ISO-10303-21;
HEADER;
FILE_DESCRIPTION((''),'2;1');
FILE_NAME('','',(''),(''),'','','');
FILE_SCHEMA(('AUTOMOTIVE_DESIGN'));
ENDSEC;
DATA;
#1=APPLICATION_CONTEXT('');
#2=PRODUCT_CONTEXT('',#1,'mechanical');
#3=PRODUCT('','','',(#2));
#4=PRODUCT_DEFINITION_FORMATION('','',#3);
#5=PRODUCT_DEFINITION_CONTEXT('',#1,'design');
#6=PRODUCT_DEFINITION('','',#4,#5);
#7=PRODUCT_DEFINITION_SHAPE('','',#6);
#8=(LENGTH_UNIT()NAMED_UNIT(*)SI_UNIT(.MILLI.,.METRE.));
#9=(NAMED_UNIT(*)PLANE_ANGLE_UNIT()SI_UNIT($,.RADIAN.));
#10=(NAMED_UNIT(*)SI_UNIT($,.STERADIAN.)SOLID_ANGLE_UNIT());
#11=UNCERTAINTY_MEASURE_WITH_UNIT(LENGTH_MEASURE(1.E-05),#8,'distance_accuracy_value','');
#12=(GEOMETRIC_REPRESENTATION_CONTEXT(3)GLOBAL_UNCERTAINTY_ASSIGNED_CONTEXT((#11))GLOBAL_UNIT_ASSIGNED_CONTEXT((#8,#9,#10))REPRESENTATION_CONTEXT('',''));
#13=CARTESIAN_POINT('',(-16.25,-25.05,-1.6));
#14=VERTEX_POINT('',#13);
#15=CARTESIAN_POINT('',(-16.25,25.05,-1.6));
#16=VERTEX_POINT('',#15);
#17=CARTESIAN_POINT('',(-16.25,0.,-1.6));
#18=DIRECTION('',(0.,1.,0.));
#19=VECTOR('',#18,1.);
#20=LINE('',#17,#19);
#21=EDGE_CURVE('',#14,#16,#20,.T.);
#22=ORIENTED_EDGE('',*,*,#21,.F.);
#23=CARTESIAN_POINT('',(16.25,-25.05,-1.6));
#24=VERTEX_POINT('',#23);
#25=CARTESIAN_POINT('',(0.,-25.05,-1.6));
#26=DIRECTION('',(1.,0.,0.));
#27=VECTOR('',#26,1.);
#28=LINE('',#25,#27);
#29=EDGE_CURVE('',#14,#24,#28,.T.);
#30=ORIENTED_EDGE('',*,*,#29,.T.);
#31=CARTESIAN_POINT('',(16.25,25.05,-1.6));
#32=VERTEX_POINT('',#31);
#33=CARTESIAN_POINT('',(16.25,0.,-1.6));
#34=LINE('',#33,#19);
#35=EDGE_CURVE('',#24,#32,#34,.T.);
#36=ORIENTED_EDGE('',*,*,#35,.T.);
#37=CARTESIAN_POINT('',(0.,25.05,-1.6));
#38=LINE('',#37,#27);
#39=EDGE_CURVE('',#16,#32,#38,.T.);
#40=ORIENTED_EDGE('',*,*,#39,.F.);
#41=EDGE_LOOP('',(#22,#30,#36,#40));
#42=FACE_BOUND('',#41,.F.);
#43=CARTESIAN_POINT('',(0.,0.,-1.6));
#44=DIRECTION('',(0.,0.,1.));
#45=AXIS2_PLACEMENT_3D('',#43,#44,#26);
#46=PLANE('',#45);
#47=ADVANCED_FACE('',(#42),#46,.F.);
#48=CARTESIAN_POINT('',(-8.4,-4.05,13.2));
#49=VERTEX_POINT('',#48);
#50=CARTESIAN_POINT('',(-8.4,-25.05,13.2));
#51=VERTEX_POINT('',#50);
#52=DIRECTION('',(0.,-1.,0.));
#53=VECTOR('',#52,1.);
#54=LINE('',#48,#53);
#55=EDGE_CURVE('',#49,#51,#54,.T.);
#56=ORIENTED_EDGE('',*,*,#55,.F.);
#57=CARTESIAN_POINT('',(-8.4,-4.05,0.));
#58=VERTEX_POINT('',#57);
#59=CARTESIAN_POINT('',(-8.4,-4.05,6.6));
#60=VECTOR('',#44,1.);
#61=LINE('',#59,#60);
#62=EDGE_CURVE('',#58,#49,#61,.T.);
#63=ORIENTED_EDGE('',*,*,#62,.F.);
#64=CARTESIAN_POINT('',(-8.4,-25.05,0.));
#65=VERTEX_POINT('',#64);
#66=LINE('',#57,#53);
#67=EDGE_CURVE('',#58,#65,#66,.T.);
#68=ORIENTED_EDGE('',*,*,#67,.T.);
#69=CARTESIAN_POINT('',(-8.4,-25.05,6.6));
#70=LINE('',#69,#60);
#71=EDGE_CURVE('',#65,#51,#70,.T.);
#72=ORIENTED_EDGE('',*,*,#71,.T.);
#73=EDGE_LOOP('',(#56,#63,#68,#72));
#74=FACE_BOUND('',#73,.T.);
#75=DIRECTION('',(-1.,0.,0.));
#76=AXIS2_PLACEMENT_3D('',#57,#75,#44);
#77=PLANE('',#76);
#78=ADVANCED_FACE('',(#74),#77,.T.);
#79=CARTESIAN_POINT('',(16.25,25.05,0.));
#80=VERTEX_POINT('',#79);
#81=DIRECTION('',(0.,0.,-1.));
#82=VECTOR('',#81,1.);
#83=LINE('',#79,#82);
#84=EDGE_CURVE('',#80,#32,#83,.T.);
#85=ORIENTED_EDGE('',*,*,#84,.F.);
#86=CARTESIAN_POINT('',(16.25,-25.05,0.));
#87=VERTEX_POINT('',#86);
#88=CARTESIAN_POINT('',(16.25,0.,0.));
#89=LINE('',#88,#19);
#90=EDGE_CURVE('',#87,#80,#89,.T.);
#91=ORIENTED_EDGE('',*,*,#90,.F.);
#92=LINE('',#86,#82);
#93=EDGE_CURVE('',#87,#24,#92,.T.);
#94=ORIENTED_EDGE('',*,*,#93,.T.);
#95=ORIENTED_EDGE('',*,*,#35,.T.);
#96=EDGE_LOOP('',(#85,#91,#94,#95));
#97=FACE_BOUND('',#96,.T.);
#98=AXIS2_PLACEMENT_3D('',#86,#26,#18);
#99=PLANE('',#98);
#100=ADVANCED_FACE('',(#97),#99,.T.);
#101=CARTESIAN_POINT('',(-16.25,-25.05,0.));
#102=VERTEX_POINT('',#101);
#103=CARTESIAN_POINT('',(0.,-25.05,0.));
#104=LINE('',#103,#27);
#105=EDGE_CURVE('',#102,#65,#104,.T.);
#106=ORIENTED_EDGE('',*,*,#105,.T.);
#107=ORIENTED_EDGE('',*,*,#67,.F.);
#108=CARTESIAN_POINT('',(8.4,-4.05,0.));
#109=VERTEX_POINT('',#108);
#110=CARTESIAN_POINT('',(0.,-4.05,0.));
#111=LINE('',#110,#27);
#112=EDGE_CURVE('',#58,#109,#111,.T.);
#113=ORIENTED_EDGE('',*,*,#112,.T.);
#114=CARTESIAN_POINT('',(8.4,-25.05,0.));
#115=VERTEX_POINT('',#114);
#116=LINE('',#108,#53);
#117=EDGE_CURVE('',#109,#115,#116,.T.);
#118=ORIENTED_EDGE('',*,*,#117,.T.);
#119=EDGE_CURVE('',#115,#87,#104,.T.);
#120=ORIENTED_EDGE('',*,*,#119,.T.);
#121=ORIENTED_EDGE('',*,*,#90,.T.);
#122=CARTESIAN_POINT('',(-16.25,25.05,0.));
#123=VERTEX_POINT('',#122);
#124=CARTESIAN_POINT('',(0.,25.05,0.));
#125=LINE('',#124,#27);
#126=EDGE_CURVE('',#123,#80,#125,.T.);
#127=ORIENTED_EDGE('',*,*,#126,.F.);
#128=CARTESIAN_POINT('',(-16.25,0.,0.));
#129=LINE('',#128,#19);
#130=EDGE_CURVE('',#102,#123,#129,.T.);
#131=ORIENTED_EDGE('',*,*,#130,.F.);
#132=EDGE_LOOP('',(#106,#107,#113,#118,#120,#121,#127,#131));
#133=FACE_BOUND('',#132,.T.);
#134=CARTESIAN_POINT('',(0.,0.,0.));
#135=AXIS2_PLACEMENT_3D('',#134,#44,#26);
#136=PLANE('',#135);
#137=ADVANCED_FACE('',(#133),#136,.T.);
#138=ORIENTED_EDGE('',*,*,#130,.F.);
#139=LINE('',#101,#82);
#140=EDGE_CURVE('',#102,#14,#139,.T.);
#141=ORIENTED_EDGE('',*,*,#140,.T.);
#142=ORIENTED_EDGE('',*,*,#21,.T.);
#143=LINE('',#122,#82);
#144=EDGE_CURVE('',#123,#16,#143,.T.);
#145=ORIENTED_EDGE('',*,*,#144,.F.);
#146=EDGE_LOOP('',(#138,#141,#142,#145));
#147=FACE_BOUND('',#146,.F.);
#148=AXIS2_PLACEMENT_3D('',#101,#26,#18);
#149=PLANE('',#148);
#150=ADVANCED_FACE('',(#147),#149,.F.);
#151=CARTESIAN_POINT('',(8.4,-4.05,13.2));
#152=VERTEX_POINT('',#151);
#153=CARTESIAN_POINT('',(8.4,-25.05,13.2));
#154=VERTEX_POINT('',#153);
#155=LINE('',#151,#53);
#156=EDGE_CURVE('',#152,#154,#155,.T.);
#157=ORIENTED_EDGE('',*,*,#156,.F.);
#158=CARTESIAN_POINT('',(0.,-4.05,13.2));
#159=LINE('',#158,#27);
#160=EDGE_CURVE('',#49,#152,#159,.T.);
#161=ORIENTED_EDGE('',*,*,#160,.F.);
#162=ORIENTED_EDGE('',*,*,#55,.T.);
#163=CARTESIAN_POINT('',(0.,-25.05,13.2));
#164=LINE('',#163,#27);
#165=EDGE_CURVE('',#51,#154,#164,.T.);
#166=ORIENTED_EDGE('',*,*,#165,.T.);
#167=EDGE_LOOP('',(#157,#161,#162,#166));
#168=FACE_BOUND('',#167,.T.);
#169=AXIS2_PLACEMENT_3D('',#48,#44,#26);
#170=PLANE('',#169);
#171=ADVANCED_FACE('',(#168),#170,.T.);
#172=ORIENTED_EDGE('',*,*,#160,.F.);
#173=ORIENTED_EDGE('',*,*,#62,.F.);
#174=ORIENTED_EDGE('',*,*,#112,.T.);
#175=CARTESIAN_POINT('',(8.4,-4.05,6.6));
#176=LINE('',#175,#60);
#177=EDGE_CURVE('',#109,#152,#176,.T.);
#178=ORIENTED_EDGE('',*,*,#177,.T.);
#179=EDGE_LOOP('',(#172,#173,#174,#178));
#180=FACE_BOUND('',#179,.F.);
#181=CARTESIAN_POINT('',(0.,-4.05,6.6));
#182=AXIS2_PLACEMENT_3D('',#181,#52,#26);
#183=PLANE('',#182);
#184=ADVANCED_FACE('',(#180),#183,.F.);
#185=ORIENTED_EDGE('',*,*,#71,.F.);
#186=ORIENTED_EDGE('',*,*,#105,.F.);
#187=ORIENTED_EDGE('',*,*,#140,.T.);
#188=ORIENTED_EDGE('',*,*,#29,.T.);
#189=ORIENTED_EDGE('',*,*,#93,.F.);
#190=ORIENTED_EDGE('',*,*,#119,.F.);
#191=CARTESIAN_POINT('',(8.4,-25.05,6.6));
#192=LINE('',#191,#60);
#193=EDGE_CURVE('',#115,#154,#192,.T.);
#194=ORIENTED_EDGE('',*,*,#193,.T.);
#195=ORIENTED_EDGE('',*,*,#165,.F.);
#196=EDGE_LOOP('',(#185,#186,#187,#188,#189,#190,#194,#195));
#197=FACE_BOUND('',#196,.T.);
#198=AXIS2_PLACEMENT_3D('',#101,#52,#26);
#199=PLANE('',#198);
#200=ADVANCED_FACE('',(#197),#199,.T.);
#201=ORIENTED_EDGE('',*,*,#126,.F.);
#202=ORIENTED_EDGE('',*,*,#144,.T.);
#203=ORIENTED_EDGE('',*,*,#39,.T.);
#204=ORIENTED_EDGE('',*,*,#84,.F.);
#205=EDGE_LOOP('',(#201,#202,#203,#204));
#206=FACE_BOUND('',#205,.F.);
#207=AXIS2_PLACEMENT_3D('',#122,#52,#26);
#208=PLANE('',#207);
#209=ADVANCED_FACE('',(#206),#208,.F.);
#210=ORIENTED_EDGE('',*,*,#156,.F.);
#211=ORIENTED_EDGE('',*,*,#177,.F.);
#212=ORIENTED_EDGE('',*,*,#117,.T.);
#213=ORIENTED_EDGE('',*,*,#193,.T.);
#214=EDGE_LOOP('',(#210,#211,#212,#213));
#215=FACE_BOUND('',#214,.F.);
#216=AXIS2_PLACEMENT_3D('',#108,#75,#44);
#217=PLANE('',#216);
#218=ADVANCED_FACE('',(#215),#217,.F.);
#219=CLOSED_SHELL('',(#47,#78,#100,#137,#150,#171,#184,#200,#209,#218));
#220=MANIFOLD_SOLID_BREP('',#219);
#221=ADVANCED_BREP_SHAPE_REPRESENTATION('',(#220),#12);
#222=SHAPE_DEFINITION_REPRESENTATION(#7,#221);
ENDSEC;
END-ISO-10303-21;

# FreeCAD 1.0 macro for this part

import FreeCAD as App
import Part
import Sketcher
from FreeCAD import Vector

doc = App.newDocument("Part")
params = doc.addObject("Spreadsheet::Sheet", "Params")
for row, (alias, value) in enumerate([
    ("sketch1_width", "32.5 mm"),
    ("sketch1_height", "50.1 mm"),
    ("pad1_length", "1.6 mm"),
    ("sketch2_width", "16.8 mm"),
    ("sketch2_height", "13.2 mm"),
    ("pad2_length", "21 mm"),
], start=1):
    params.set(f"A{row}", alias)
    params.set(f"B{row}", "=" + value)
    params.setAlias(f"B{row}", alias)

body = doc.addObject("PartDesign::Body", "Body")

# Sketch on XY plane
sketch1 = body.newObject("Sketcher::SketchObject", "Sketch")
sketch1.AttachmentSupport = (doc.getObject("XY_Plane"), [""])
sketch1.MapMode = "FlatFace"
sketch1.addGeometry([
    Part.LineSegment(Vector(-16, 25, 0), Vector(-16, -25, 0)),
    Part.LineSegment(Vector(-16, -25, 0), Vector(16, -25, 0)),
    Part.LineSegment(Vector(16, -25, 0), Vector(16, 25, 0)),
    Part.LineSegment(Vector(16, 25, 0), Vector(-16, 25, 0)),
], False)
sketch1.addConstraint([
    Sketcher.Constraint("Coincident", 0, 2, 1, 1),
    Sketcher.Constraint("Coincident", 1, 2, 2, 1),
    Sketcher.Constraint("Coincident", 2, 2, 3, 1),
    Sketcher.Constraint("Coincident", 3, 2, 0, 1),
    Sketcher.Constraint("Vertical", 0),
    Sketcher.Constraint("Horizontal", 1),
    Sketcher.Constraint("Vertical", 2),
    Sketcher.Constraint("Horizontal", 3),
    Sketcher.Constraint("Symmetric", 0, 2, 2, 2, -1, 1),
    Sketcher.Constraint("DistanceX", 1, 1, 1, 2, 32.5),
    Sketcher.Constraint("DistanceY", 0, 2, 0, 1, 50.1),
])
sketch1.setExpression("Constraints[9]", "Params.sketch1_width")
sketch1.setExpression("Constraints[10]", "Params.sketch1_height")
pad1 = body.newObject("PartDesign::Pad", "Pad")
pad1.Profile = sketch1
pad1.setExpression("Length", "Params.pad1_length")
pad1.Reversed = True

# Sketch on XZ plane
sketch2 = body.newObject("Sketcher::SketchObject", "Sketch001")
sketch2.AttachmentSupport = (doc.getObject("XZ_Plane"), [""])
sketch2.MapMode = "FlatFace"
sketch2.AttachmentOffset = App.Placement(Vector(0, 0, 4.05), App.Rotation())
sketch2.addGeometry([
    Part.LineSegment(Vector(-8, 13, 0), Vector(-8, 0, 0)),
    Part.LineSegment(Vector(-8, 0, 0), Vector(8, 0, 0)),
    Part.LineSegment(Vector(8, 0, 0), Vector(8, 13, 0)),
    Part.LineSegment(Vector(8, 13, 0), Vector(-8, 13, 0)),
], False)
sketch2.addConstraint([
    Sketcher.Constraint("Coincident", 0, 2, 1, 1),
    Sketcher.Constraint("Coincident", 1, 2, 2, 1),
    Sketcher.Constraint("Coincident", 2, 2, 3, 1),
    Sketcher.Constraint("Coincident", 3, 2, 0, 1),
    Sketcher.Constraint("Vertical", 0),
    Sketcher.Constraint("Horizontal", 1),
    Sketcher.Constraint("Vertical", 2),
    Sketcher.Constraint("Horizontal", 3),
    Sketcher.Constraint("Symmetric", 0, 2, 1, 2, -1, 1),
    Sketcher.Constraint("DistanceX", 1, 1, 1, 2, 16.8),
    Sketcher.Constraint("DistanceY", 0, 2, 0, 1, 13.2),
])
sketch2.setExpression("Constraints[9]", "Params.sketch2_width")
sketch2.setExpression("Constraints[10]", "Params.sketch2_height")
pad2 = body.newObject("PartDesign::Pad", "Pad001")
pad2.Profile = sketch2
pad2.setExpression("Length", "Params.pad2_length")

doc.recompute()
